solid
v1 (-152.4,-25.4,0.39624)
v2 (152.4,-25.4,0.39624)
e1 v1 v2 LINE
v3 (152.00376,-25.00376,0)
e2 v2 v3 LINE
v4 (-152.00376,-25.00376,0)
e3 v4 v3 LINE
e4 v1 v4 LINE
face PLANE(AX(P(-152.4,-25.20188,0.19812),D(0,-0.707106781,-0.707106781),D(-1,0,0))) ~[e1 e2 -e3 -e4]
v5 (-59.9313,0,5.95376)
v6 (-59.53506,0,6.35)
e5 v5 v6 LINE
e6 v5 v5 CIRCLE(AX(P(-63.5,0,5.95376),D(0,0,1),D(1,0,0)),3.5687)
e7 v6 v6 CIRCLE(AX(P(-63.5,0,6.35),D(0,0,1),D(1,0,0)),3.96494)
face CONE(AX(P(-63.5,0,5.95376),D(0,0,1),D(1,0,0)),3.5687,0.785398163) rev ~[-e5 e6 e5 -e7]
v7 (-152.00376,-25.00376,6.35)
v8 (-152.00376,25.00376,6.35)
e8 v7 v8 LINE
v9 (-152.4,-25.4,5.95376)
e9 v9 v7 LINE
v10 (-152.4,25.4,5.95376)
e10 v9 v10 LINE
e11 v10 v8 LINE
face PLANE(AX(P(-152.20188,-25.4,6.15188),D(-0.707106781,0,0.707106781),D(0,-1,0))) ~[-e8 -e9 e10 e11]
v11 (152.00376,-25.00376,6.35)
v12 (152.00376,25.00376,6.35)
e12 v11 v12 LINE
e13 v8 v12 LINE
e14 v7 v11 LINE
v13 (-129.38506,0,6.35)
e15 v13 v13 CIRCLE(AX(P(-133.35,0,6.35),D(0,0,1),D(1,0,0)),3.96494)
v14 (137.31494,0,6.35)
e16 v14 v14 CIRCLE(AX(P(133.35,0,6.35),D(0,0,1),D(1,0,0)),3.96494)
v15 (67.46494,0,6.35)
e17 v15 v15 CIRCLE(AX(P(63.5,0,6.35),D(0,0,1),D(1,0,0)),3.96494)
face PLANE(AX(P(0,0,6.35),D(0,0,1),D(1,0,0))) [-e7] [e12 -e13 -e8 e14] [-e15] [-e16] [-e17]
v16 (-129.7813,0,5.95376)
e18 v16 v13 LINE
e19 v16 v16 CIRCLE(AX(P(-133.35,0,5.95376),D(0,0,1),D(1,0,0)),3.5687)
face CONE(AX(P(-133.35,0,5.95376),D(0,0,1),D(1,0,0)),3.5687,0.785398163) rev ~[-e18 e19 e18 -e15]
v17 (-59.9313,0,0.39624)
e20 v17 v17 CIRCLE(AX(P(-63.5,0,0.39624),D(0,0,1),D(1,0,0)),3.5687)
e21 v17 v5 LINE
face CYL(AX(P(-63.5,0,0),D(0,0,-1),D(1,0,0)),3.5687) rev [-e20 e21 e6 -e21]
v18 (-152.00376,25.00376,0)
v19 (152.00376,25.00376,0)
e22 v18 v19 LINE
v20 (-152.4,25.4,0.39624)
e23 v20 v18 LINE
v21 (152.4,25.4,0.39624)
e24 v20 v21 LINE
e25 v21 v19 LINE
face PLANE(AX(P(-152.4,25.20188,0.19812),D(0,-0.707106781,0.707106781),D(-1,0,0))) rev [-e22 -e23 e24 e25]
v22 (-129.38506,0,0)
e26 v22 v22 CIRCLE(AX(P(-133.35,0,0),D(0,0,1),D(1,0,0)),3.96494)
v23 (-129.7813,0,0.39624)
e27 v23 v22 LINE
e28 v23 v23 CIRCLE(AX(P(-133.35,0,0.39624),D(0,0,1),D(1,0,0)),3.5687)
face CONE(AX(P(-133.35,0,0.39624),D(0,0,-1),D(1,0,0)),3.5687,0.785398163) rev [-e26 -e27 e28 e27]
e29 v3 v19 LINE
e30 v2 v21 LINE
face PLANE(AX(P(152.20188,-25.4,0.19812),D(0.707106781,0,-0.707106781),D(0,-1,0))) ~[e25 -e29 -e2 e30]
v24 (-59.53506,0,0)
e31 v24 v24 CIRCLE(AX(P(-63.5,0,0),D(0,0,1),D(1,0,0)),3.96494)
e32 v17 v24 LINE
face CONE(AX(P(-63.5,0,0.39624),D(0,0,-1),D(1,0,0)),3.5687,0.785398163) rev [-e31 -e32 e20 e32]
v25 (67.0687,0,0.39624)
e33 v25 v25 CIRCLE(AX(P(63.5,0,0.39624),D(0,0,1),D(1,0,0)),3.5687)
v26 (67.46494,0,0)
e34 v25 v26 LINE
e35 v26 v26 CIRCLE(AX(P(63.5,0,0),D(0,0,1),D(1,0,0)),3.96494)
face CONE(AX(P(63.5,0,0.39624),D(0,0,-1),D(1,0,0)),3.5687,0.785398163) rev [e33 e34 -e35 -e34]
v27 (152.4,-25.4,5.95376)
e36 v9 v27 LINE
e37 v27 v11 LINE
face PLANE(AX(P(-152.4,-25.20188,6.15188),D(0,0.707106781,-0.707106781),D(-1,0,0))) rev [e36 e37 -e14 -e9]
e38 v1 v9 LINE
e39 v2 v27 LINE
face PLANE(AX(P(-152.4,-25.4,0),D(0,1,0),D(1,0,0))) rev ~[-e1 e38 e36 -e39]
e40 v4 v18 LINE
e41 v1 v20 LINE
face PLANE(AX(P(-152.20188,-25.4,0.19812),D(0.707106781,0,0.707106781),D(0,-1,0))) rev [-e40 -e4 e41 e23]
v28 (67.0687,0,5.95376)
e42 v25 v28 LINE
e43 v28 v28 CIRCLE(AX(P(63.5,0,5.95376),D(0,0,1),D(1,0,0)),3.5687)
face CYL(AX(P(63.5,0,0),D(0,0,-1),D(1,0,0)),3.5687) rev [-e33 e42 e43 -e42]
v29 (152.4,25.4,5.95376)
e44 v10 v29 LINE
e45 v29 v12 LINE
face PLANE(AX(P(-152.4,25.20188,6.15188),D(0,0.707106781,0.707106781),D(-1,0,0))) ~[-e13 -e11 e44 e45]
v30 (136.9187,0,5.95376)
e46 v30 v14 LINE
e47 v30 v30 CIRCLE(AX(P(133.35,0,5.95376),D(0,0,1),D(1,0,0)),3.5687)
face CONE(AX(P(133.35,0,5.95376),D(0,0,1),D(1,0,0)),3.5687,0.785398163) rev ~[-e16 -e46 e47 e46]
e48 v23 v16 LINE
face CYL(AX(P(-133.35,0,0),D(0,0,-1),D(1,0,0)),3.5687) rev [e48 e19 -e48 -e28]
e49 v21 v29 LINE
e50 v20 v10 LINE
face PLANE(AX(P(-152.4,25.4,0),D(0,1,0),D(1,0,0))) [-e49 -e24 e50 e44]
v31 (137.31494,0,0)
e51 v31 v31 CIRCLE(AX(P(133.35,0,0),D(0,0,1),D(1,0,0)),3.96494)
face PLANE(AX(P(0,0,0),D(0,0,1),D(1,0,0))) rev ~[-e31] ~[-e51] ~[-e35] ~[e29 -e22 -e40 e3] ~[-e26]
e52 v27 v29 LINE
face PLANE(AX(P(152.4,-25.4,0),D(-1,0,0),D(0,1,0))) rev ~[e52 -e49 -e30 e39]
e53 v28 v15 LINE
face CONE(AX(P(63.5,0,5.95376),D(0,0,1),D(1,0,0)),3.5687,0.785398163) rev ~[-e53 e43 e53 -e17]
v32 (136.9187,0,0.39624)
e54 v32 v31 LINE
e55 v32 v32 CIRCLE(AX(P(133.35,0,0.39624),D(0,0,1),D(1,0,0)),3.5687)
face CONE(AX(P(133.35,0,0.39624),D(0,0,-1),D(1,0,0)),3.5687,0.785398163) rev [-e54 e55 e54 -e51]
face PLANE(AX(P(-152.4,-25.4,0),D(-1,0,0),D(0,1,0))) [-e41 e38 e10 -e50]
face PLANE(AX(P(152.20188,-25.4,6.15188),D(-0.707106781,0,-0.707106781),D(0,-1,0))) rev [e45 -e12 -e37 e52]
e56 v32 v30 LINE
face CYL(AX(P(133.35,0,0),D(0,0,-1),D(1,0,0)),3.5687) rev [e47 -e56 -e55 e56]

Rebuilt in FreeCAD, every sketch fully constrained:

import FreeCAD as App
import Part
import Sketcher

V = App.Vector
Q = App.Units.Quantity


def edges_at(feature, points):
    """Names of the edges that pass closest to the given points."""
    edges = feature.Shape.Edges
    near = lambda p: min(range(len(edges)), key=lambda i: edges[i].distToShape(Part.Vertex(*p))[0])
    return sorted({f"Edge{near(p) + 1}" for p in points})


def add_polygon(sketch, points):
    """Adds a closed chain of lines whose ends are joined by coincident constraints."""
    first, n = sketch.GeometryCount, len(points)
    for a, b in zip(points, points[1:] + points[:1]):
        sketch.addGeometry(Part.LineSegment(App.Vector(*a, 0), App.Vector(*b, 0)), False)
    for i in range(n):
        sketch.addConstraint(Sketcher.Constraint("Coincident", first + i, 2, first + (i + 1) % n, 1))

doc = App.newDocument("Part")
body = doc.addObject("PartDesign::Body", "Body")

sketch1 = doc.addObject("Sketcher::SketchObject", "Sketch")
body.addObject(sketch1)
sketch1.AttachmentSupport = (doc.XY_Plane, [""])
sketch1.MapMode = "FlatFace"
add_polygon(sketch1, [(-152.4, 25.4), (-152.4, -25.4), (152.4, -25.4), (152.4, 25.4)])
sketch1.addGeometry(Part.Circle(V(-133.35, 0, 0), V(0, 0, 1), 3.5687), False)
sketch1.addGeometry(Part.Circle(V(-63.5, 0, 0), V(0, 0, 1), 3.5687), False)
sketch1.addGeometry(Part.Circle(V(63.5, 0, 0), V(0, 0, 1), 3.5687), False)
sketch1.addGeometry(Part.Circle(V(133.35, 0, 0), V(0, 0, 1), 3.5687), False)
sketch1.addConstraint([
    Sketcher.Constraint("Vertical", 0),
    Sketcher.Constraint("Horizontal", 1),
    Sketcher.Constraint("Vertical", 2),
    Sketcher.Constraint("Horizontal", 3),
    Sketcher.Constraint("Equal", 4, 5),
    Sketcher.Constraint("Equal", 5, 6),
    Sketcher.Constraint("Equal", 6, 7),
    Sketcher.Constraint("Symmetric", 5, 3, 6, 3, -1, 1),
    Sketcher.Constraint("Symmetric", 4, 3, 7, 3, -1, 1),
    Sketcher.Constraint("Symmetric", 0, 2, 2, 2, -1, 1),
    Sketcher.Constraint("PointOnObject", 4, 3, -1),
    Sketcher.Constraint("PointOnObject", 5, 3, -1),
    Sketcher.Constraint("DistanceX", 1, 1, 1, 2, Q("12 in")),
    Sketcher.Constraint("DistanceY", 0, 2, 0, 1, Q("2 in")),
    Sketcher.Constraint("Diameter", 4, Q("0.281 in")),
    Sketcher.Constraint("DistanceX", 5, 3, 6, 3, Q("5 in")),
    Sketcher.Constraint("DistanceX", 4, 3, 7, 3, Q("10.5 in")),
])
pad1 = doc.addObject("PartDesign::Pad", "Pad")
body.addObject(pad1)
pad1.Profile = sketch1
pad1.Length = Q("0.25 in")
doc.recompute()

chamfer = doc.addObject("PartDesign::Chamfer", "Chamfer")
body.addObject(chamfer)
chamfer.Base = (pad1, edges_at(pad1, [
    (152.4, 0, 0),
    (0, 25.4, 0),
    (-152.4, 0, 0),
    (0, -25.4, 0),
    (-136.919, 0, 0),
    (-67.069, 0, 0),
    (59.931, 0, 0),
    (129.781, 0, 0),
    (0, 25.4, 6.35),
    (152.4, 0, 6.35),
    (-152.4, 0, 6.35),
    (0, -25.4, 6.35),
    (-136.919, 0, 6.35),
    (-67.069, 0, 6.35),
    (59.931, 0, 6.35),
    (129.781, 0, 6.35),
]))
chamfer.Size = Q("0.0156 in")

doc.recompute()
